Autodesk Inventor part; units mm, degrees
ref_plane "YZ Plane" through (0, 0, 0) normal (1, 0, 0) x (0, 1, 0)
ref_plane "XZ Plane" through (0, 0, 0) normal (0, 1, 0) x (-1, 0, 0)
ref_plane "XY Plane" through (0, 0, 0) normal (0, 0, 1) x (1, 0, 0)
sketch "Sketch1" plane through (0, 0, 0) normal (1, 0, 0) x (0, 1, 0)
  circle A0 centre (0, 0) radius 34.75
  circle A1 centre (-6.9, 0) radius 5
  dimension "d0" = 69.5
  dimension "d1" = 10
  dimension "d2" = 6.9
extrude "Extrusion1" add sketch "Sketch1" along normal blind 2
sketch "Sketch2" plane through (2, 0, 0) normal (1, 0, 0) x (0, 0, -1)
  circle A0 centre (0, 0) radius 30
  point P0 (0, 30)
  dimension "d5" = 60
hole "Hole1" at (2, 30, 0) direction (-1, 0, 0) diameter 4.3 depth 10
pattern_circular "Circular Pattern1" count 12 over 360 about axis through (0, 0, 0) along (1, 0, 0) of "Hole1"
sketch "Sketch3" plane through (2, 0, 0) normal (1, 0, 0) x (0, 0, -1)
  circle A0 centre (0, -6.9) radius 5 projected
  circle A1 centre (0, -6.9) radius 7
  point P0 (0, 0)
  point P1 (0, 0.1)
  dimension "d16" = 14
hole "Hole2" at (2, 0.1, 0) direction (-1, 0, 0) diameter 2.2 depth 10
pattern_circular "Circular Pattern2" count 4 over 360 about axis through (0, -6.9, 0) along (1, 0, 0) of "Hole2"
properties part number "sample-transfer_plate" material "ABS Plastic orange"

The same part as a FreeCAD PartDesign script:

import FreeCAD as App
import Part
import Sketcher
from FreeCAD import Vector

doc = App.newDocument("Part")
body = doc.addObject("PartDesign::Body", "Body")

sketch1 = body.newObject("Sketcher::SketchObject", "Sketch")
sketch1.AttachmentSupport = (doc.getObject("YZ_Plane"), [""])
sketch1.MapMode = "FlatFace"
sketch1.addGeometry([
    Part.Circle(Vector(0, 0, 0), Vector(0, 0, 1), 35),
    Part.Circle(Vector(-7, 0, 0), Vector(0, 0, 1), 5),
], False)
sketch1.addConstraint([
    Sketcher.Constraint("Coincident", 0, 3, -1, 1),
    Sketcher.Constraint("PointOnObject", 1, 3, -1),
    Sketcher.Constraint("Diameter", 1, 10.0),
    Sketcher.Constraint("Diameter", 0, 69.5),
    Sketcher.Constraint("DistanceX", 1, 3, -1, 1, 6.9),
])
pad1 = body.newObject("PartDesign::Pad", "Pad")
pad1.Profile = sketch1
pad1.Length = 2

sketch2 = body.newObject("Sketcher::SketchObject", "Sketch001")
sketch2.AttachmentSupport = (doc.getObject("YZ_Plane"), [""])
sketch2.MapMode = "FlatFace"
sketch2.AttachmentOffset = App.Placement(Vector(0, 0, 2), App.Rotation())
sketch2.addGeometry(Part.Circle(Vector(30, 0, 0), Vector(0, 0, 1), 2.1), False)
sketch2.addConstraint([
    Sketcher.Constraint("PointOnObject", 0, 3, -1),
    Sketcher.Constraint("Diameter", 0, 4.3),
    Sketcher.Constraint("DistanceX", -1, 1, 0, 3, 30.0),
])
doc.recompute()
hole = body.newObject("PartDesign::Hole", "Hole")
hole.Profile = sketch2
hole.ThreadType = "None"
hole.Diameter = 4.3
hole.DepthType = "Dimension"
hole.Depth = 10
hole.DrillPoint = "Flat"
doc.recompute()

polarpattern = body.newObject("PartDesign::PolarPattern", "PolarPattern")
polarpattern.Originals = [hole]
polarpattern.Axis = (doc.getObject("X_Axis"), [""])
polarpattern.Angle = 360
polarpattern.Occurrences = 12
body.Tip = polarpattern

sketch3 = body.newObject("Sketcher::SketchObject", "Sketch002")
sketch3.AttachmentSupport = (doc.getObject("YZ_Plane"), [""])
sketch3.MapMode = "FlatFace"
sketch3.AttachmentOffset = App.Placement(Vector(0, 0, 2), App.Rotation())
sketch3.addGeometry(Part.Circle(Vector(0.1, 0, 0), Vector(0, 0, 1), 1.1), False)
sketch3.addConstraint([
    Sketcher.Constraint("PointOnObject", 0, 3, -1),
    Sketcher.Constraint("Diameter", 0, 2.2),
    Sketcher.Constraint("DistanceX", -1, 1, 0, 3, 0.1),
])
doc.recompute()
hole2 = body.newObject("PartDesign::Hole", "Hole001")
hole2.Profile = sketch3
hole2.ThreadType = "None"
hole2.Diameter = 2.2
hole2.DepthType = "Dimension"
hole2.Depth = 10
hole2.DrillPoint = "Flat"
doc.recompute()

datumline = body.newObject("PartDesign::Line", "DatumLine")
datumline.Placement = App.Placement(Vector(0, -6.9, 0), App.Rotation(Vector(0, 0, 1), Vector(1, 0, 0)))
polarpattern2 = body.newObject("PartDesign::PolarPattern", "PolarPattern001")
polarpattern2.Originals = [hole2]
polarpattern2.Axis = (datumline, [""])
polarpattern2.Angle = 360
polarpattern2.Occurrences = 4
body.Tip = polarpattern2

doc.recompute()
